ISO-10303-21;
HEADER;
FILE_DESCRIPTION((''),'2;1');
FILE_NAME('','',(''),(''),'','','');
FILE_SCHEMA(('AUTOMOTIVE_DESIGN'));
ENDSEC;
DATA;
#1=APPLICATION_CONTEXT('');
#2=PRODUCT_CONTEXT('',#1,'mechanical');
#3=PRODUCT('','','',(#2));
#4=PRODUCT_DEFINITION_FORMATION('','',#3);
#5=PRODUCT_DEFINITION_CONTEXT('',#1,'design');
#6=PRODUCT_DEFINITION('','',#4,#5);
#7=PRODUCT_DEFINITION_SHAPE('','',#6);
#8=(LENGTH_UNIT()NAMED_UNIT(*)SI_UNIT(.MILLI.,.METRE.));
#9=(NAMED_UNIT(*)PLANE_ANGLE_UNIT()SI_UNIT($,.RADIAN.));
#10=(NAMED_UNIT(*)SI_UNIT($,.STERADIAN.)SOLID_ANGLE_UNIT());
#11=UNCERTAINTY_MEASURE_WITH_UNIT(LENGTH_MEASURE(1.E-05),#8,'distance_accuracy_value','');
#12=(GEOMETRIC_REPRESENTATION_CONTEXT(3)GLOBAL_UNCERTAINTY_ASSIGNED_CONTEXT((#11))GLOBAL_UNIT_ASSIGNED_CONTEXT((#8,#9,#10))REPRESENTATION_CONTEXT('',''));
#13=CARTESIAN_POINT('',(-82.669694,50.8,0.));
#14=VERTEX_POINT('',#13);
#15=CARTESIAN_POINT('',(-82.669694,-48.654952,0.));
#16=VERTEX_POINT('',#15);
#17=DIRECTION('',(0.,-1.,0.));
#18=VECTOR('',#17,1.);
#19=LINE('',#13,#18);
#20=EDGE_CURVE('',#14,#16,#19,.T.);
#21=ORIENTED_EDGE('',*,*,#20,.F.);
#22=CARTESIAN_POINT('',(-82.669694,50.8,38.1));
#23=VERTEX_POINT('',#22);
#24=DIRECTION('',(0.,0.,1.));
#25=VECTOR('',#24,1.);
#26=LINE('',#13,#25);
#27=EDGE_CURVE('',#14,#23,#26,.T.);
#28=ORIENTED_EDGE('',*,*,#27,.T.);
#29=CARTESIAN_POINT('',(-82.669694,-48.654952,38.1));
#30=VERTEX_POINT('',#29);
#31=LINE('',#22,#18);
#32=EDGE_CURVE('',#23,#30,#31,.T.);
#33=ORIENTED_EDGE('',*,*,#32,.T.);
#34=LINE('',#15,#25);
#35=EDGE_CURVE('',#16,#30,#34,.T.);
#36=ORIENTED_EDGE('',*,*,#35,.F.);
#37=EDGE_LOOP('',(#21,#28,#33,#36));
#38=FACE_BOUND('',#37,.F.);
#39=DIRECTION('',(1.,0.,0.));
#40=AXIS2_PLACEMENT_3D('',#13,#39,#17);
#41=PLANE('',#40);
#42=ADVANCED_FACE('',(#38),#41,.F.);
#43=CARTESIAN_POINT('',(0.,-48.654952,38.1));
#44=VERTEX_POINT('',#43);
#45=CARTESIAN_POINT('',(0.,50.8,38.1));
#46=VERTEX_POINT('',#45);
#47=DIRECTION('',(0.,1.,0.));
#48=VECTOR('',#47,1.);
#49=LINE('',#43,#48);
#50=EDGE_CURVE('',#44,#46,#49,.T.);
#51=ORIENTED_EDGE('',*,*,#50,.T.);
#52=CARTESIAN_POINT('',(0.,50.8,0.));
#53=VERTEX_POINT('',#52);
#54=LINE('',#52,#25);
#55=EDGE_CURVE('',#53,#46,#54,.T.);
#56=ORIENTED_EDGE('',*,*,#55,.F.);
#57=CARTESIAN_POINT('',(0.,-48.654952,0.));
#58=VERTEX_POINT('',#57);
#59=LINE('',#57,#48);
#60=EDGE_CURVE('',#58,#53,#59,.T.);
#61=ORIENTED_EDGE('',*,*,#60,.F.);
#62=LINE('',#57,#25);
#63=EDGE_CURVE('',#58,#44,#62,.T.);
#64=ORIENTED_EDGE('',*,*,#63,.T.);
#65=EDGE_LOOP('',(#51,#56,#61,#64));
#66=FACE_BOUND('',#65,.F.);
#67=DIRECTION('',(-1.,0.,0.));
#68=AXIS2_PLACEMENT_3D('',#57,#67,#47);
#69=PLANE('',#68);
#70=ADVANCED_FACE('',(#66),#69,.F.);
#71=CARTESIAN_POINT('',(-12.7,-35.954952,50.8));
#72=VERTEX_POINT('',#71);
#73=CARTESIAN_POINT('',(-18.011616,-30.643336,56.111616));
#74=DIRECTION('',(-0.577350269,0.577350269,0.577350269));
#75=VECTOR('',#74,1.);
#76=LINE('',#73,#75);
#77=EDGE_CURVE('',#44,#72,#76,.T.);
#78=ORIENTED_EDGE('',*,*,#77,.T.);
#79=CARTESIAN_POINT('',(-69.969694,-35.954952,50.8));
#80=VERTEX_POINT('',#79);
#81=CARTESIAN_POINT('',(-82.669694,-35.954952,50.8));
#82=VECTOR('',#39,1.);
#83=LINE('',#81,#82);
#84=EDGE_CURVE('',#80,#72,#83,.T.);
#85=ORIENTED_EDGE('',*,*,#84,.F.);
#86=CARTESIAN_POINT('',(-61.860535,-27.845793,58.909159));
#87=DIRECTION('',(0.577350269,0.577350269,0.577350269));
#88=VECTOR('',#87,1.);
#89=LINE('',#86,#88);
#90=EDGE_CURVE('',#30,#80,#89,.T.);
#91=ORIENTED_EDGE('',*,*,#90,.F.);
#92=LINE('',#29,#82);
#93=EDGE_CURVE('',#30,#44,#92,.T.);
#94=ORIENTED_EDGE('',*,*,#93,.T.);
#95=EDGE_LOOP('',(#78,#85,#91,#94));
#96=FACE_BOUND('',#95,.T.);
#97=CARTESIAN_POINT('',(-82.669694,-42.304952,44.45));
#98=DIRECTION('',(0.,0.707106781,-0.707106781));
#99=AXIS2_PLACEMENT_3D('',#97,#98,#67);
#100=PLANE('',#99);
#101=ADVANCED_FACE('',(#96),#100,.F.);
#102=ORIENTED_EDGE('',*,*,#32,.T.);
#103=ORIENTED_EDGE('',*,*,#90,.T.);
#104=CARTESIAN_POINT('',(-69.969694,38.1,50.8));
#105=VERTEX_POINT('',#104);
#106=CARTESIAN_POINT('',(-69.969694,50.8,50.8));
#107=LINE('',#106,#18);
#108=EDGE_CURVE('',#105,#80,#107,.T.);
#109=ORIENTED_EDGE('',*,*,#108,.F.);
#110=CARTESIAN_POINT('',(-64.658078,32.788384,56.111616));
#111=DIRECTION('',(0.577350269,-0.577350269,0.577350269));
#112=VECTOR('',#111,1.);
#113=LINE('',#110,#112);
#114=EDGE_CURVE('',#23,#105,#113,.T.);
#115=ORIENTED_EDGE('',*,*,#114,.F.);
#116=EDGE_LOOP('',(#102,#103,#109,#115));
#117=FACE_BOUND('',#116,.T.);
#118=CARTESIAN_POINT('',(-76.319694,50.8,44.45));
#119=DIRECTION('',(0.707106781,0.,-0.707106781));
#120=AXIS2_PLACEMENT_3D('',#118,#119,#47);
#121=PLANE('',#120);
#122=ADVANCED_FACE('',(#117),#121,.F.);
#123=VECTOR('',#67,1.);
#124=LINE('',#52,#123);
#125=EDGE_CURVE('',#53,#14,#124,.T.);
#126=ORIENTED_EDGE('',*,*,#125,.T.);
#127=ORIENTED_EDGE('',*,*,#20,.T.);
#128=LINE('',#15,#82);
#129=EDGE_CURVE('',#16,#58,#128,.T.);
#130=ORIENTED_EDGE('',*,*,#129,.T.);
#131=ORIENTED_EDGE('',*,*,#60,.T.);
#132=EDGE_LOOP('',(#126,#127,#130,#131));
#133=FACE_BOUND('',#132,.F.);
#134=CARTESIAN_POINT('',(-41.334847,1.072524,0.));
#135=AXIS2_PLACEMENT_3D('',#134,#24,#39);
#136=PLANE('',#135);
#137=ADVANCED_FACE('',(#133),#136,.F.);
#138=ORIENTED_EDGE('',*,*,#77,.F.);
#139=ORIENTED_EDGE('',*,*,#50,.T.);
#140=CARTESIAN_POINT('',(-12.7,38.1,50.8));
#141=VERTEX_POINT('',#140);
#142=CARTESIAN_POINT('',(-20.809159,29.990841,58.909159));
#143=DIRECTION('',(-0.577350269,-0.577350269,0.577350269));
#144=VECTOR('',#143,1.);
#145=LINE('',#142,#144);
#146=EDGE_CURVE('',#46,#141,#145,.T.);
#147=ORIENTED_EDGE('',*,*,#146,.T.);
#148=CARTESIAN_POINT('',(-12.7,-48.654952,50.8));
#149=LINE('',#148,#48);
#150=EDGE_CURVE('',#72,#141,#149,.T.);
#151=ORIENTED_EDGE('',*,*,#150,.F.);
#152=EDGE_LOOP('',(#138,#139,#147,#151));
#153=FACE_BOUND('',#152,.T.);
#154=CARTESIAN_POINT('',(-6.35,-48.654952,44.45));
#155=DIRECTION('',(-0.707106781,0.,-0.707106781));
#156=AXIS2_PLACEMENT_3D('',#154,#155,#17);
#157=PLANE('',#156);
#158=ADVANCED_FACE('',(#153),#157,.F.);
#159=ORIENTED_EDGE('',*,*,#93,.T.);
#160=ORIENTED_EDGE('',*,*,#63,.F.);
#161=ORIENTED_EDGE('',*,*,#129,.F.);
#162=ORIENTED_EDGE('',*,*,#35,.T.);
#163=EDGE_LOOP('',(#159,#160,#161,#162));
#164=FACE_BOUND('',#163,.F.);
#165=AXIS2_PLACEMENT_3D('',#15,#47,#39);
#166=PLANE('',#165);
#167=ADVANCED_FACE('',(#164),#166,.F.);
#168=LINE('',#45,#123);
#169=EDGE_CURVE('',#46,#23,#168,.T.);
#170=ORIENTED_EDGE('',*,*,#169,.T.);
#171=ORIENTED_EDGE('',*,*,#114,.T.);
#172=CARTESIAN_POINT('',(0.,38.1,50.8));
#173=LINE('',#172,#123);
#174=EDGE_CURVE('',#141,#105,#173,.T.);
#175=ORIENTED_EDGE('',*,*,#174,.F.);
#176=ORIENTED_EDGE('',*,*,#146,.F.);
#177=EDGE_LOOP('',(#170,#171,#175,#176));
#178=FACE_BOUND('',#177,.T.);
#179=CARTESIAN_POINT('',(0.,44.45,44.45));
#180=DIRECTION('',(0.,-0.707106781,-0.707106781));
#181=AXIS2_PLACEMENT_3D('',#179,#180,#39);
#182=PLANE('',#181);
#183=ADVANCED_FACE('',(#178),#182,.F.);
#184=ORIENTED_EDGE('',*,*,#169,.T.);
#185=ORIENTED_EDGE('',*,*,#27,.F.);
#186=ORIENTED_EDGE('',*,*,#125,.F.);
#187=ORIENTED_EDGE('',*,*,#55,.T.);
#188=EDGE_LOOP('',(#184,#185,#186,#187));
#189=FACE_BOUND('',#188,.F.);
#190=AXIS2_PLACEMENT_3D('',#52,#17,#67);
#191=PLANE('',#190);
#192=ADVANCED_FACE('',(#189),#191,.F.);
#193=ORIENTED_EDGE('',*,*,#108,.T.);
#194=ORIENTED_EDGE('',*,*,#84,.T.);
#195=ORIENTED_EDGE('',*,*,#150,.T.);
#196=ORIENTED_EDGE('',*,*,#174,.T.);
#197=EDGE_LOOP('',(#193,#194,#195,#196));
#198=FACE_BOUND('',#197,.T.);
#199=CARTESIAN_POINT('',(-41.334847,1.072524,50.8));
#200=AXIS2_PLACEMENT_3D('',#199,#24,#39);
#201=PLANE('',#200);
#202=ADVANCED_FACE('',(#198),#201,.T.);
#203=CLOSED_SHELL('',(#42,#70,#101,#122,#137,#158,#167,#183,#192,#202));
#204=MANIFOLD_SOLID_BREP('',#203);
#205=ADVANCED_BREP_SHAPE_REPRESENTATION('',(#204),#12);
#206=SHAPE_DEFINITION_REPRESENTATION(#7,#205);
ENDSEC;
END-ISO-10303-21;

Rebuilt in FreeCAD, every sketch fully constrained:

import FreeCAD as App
import Part
import Sketcher

V = App.Vector
Q = App.Units.Quantity


def edges_at(feature, points):
    """Names of the edges that pass closest to the given points."""
    edges = feature.Shape.Edges
    near = lambda p: min(range(len(edges)), key=lambda i: edges[i].distToShape(Part.Vertex(*p))[0])
    return sorted({f"Edge{near(p) + 1}" for p in points})


def add_polygon(sketch, points):
    """Adds a closed chain of lines whose ends are joined by coincident constraints."""
    first, n = sketch.GeometryCount, len(points)
    for a, b in zip(points, points[1:] + points[:1]):
        sketch.addGeometry(Part.LineSegment(App.Vector(*a, 0), App.Vector(*b, 0)), False)
    for i in range(n):
        sketch.addConstraint(Sketcher.Constraint("Coincident", first + i, 2, first + (i + 1) % n, 1))

doc = App.newDocument("Part")
body = doc.addObject("PartDesign::Body", "Body")

sketch1 = body.newObject("Sketcher::SketchObject", "Sketch")
sketch1.AttachmentSupport = (doc.getObject("XY_Plane"), [""])
sketch1.MapMode = "FlatFace"
add_polygon(sketch1, [(-82.669694, -48.654952), (0, -48.654952), (0, 50.8), (-82.669694, 50.8)])
sketch1.addConstraint([
    Sketcher.Constraint("Horizontal", 0),
    Sketcher.Constraint("Vertical", 1),
    Sketcher.Constraint("Horizontal", 2),
    Sketcher.Constraint("Vertical", 3),
    Sketcher.Constraint("PointOnObject", 0, 2, -2),
    Sketcher.Constraint("DistanceY", -1, 1, 1, 2, Q("2 in")),
    Sketcher.Constraint("DistanceY", 1, 1, 1, 2, 99.454952),
    Sketcher.Constraint("DistanceX", 0, 1, 0, 2, 82.669694),
])
pad1 = body.newObject("PartDesign::Pad", "Pad")
pad1.Profile = sketch1
pad1.Length = Q("2 in")
doc.recompute()

chamfer = body.newObject("PartDesign::Chamfer", "Chamfer")
chamfer.Base = (pad1, edges_at(pad1, [
    (-41.335, -48.655, 50.8),
    (-82.67, 1.073, 50.8),
    (0, 1.073, 50.8),
    (-41.335, 50.8, 50.8),
]))
chamfer.Size = Q("0.5 in")

doc.recompute()
